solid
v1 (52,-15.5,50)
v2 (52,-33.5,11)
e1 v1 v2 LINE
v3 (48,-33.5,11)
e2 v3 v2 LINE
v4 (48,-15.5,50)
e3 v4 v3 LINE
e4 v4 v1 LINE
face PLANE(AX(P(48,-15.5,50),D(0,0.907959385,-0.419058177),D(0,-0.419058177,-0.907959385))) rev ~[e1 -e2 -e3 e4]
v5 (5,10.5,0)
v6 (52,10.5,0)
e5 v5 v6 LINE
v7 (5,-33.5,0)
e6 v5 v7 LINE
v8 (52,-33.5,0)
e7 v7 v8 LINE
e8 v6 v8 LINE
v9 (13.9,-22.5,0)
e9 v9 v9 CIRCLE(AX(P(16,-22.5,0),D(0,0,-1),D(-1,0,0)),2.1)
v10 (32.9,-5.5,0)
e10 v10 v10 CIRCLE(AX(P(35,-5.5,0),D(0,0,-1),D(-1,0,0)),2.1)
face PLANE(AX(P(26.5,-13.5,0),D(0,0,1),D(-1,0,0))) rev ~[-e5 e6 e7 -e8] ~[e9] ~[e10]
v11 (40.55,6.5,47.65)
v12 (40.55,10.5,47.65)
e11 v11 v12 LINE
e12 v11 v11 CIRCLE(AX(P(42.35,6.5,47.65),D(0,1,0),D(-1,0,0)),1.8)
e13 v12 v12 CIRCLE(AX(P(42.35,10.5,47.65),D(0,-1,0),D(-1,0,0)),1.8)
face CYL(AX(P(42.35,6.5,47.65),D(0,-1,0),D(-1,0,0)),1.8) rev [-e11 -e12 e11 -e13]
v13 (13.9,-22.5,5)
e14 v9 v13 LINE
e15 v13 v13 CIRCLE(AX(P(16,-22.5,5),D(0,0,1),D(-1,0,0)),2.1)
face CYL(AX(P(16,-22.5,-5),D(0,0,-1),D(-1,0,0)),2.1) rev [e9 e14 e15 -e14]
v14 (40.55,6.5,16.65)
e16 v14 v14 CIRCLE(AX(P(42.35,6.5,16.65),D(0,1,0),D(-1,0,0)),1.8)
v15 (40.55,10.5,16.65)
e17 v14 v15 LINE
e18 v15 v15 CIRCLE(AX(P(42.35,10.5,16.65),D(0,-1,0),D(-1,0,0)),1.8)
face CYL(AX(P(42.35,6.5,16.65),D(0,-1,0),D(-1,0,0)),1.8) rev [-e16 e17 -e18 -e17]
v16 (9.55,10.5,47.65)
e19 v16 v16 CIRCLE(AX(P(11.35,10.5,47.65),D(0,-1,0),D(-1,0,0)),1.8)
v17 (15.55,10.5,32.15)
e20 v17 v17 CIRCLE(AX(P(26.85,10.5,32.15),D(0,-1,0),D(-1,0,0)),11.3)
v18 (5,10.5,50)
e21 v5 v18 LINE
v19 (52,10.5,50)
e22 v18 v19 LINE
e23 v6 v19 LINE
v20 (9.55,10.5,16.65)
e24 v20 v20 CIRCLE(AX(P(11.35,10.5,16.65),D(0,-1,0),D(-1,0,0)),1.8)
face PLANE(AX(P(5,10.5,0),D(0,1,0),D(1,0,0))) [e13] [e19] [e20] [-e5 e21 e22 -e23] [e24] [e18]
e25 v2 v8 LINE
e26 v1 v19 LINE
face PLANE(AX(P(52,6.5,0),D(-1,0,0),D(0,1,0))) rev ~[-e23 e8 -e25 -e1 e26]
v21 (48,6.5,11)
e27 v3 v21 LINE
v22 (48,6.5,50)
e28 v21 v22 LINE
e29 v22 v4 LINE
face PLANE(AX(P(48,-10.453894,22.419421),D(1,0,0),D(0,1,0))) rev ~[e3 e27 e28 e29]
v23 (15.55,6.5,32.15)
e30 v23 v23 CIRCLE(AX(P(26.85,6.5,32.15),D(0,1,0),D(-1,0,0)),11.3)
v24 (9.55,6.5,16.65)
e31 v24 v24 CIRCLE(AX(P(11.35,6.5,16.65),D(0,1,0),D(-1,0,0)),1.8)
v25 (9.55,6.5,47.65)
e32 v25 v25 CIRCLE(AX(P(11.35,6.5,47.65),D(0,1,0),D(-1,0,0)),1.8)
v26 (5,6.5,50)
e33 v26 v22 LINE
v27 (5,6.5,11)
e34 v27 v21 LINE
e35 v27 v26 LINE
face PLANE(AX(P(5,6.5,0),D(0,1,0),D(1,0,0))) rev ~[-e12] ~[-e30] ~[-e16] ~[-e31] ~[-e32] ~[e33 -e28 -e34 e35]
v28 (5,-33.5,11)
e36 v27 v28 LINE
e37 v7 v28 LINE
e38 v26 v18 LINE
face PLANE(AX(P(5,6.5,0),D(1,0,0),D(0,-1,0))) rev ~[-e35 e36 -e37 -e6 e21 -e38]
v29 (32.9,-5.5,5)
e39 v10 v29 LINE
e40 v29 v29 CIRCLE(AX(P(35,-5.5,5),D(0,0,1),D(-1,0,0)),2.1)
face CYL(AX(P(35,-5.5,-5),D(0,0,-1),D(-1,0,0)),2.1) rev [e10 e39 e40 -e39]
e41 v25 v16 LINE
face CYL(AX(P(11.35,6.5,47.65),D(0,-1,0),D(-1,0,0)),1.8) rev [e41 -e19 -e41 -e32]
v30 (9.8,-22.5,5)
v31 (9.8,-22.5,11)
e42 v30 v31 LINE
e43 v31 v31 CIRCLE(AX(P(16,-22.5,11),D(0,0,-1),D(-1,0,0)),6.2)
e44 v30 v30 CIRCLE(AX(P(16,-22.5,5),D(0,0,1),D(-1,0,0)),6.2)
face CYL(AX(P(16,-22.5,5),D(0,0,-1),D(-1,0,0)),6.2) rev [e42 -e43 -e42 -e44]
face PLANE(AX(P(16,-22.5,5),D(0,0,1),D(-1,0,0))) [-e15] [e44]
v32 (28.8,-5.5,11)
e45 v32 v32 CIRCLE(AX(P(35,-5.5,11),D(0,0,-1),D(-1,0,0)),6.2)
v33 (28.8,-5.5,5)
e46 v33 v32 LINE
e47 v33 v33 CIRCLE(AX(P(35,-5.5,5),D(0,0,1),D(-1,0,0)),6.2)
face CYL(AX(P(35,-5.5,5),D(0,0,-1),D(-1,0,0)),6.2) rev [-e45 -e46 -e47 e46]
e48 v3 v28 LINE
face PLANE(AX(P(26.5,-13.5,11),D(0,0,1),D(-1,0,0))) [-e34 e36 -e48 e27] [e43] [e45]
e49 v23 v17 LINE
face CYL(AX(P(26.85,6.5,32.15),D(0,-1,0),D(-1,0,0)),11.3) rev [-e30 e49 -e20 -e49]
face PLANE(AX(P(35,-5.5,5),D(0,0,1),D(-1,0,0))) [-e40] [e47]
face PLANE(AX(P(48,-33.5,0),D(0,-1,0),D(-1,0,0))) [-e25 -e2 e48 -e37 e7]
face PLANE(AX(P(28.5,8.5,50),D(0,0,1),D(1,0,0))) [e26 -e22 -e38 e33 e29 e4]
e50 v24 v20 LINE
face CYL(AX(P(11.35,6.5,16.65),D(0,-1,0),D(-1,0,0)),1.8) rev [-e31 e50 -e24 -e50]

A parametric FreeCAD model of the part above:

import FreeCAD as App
import Part
import Sketcher

V = App.Vector
Q = App.Units.Quantity

doc = App.newDocument("Part")
body = doc.addObject("PartDesign::Body", "Body")

# Sketch on XZ plane
sketch1 = body.newObject("Sketcher::SketchObject", "Sketch")
sketch1.AttachmentSupport = (doc.getObject("XZ_Plane"), [""])
sketch1.MapMode = "FlatFace"
sketch1.addGeometry(Part.Circle(V(5.65, 36.65, 0), V(0, 0, 1), 1.8), False)
sketch1.addConstraint(Sketcher.Constraint("Diameter", 0, Q("3.6 mm")))
sketch1.addConstraint(Sketcher.Constraint("DistanceX", -1, 1, 0, 3, Q("5.65 mm")))
sketch1.addConstraint(Sketcher.Constraint("DistanceY", -1, 1, 0, 3, Q("36.65 mm")))
pad1 = body.newObject("PartDesign::Pad", "Pad")
pad1.Profile = sketch1
pad1.Length = 10
body2 = doc.addObject("PartDesign::Body", "Body001")

# Sketch on XZ plane
sketch2 = body2.newObject("Sketcher::SketchObject", "Sketch001")
sketch2.AttachmentSupport = (doc.getObject("XZ_Plane001"), [""])
sketch2.MapMode = "FlatFace"
sketch2.addGeometry(Part.Circle(V(36.65, 36.65, 0), V(0, 0, 1), 1.8), False)
sketch2.addConstraint(Sketcher.Constraint("Diameter", 0, Q("3.6 mm")))
sketch2.addConstraint(Sketcher.Constraint("DistanceX", -1, 1, 0, 3, Q("36.65 mm")))
sketch2.addConstraint(Sketcher.Constraint("DistanceY", -1, 1, 0, 3, Q("36.65 mm")))
pad2 = body2.newObject("PartDesign::Pad", "Pad001")
pad2.Profile = sketch2
pad2.Length = 10
body3 = doc.addObject("PartDesign::Body", "Body002")

# Sketch on XZ plane
sketch3 = body3.newObject("Sketcher::SketchObject", "Sketch002")
sketch3.AttachmentSupport = (doc.getObject("XZ_Plane002"), [""])
sketch3.MapMode = "FlatFace"
sketch3.addGeometry(Part.Circle(V(5.65, 5.65, 0), V(0, 0, 1), 1.8), False)
sketch3.addConstraint(Sketcher.Constraint("Diameter", 0, Q("3.6 mm")))
sketch3.addConstraint(Sketcher.Constraint("DistanceX", -1, 1, 0, 3, Q("5.65 mm")))
sketch3.addConstraint(Sketcher.Constraint("DistanceY", -1, 1, 0, 3, Q("5.65 mm")))
pad3 = body3.newObject("PartDesign::Pad", "Pad002")
pad3.Profile = sketch3
pad3.Length = 10
body4 = doc.addObject("PartDesign::Body", "Body003")

# Sketch on XZ plane
sketch4 = body4.newObject("Sketcher::SketchObject", "Sketch003")
sketch4.AttachmentSupport = (doc.getObject("XZ_Plane003"), [""])
sketch4.MapMode = "FlatFace"
sketch4.addGeometry(Part.Circle(V(36.65, 5.65, 0), V(0, 0, 1), 1.8), False)
sketch4.addConstraint(Sketcher.Constraint("Diameter", 0, Q("3.6 mm")))
sketch4.addConstraint(Sketcher.Constraint("DistanceX", -1, 1, 0, 3, Q("36.65 mm")))
sketch4.addConstraint(Sketcher.Constraint("DistanceY", -1, 1, 0, 3, Q("5.65 mm")))
pad4 = body4.newObject("PartDesign::Pad", "Pad003")
pad4.Profile = sketch4
pad4.Length = 10
body5 = doc.addObject("PartDesign::Body", "Body004")

# Sketch on XZ plane
sketch5 = body5.newObject("Sketcher::SketchObject", "Sketch004")
sketch5.AttachmentSupport = (doc.getObject("XZ_Plane004"), [""])
sketch5.MapMode = "FlatFace"
sketch5.AttachmentOffset = App.Placement(V(0, 0, 2), App.Rotation())
sketch5.addGeometry(Part.Circle(V(21.15, 21.15, 0), V(0, 0, 1), 2.5), False)
sketch5.addConstraint(Sketcher.Constraint("Diameter", 0, Q("5 mm")))
sketch5.addConstraint(Sketcher.Constraint("DistanceX", -1, 1, 0, 3, Q("21.15 mm")))
sketch5.addConstraint(Sketcher.Constraint("DistanceY", -1, 1, 0, 3, Q("21.15 mm")))
pad5 = body5.newObject("PartDesign::Pad", "Pad004")
pad5.Profile = sketch5
pad5.Length = 24
body6 = doc.addObject("PartDesign::Body", "Body005")

# Sketch on XZ plane
sketch6 = body6.newObject("Sketcher::SketchObject", "Sketch005")
sketch6.AttachmentSupport = (doc.getObject("XZ_Plane005"), [""])
sketch6.MapMode = "FlatFace"
sketch6.addGeometry(Part.Circle(V(21.15, 21.15, 0), V(0, 0, 1), 11.3), False)
sketch6.addConstraint(Sketcher.Constraint("Diameter", 0, Q("22.6 mm")))
sketch6.addConstraint(Sketcher.Constraint("DistanceX", -1, 1, 0, 3, Q("21.15 mm")))
sketch6.addConstraint(Sketcher.Constraint("DistanceY", -1, 1, 0, 3, Q("21.15 mm")))
pad6 = body6.newObject("PartDesign::Pad", "Pad005")
pad6.Profile = sketch6
pad6.Length = 6
body7 = doc.addObject("PartDesign::Body", "Body006")

# Sketch on XY plane
sketch7 = body7.newObject("Sketcher::SketchObject", "Sketch006")
sketch7.AttachmentSupport = (doc.getObject("XY_Plane006"), [""])
sketch7.MapMode = "FlatFace"
sketch7.addGeometry(Part.LineSegment(V(0, 39.8, 0), V(0, 0, 0)), False)
sketch7.addGeometry(Part.LineSegment(V(0, 0, 0), V(42.3, 0, 0)), False)
sketch7.addGeometry(Part.LineSegment(V(42.3, 0, 0), V(42.3, 39.8, 0)), False)
sketch7.addGeometry(Part.LineSegment(V(42.3, 39.8, 0), V(0, 39.8, 0)), False)
sketch7.addConstraint(Sketcher.Constraint("Coincident", 0, 2, 1, 1))
sketch7.addConstraint(Sketcher.Constraint("Coincident", 1, 2, 2, 1))
sketch7.addConstraint(Sketcher.Constraint("Coincident", 2, 2, 3, 1))
sketch7.addConstraint(Sketcher.Constraint("Coincident", 3, 2, 0, 1))
sketch7.addConstraint(Sketcher.Constraint("Vertical", 0))
sketch7.addConstraint(Sketcher.Constraint("Horizontal", 1))
sketch7.addConstraint(Sketcher.Constraint("Vertical", 2))
sketch7.addConstraint(Sketcher.Constraint("Horizontal", 3))
sketch7.addConstraint(Sketcher.Constraint("Coincident", 0, 2, -1, 1))
sketch7.addConstraint(Sketcher.Constraint("DistanceX", 1, 1, 1, 2, Q("42.3 mm")))
sketch7.addConstraint(Sketcher.Constraint("DistanceY", 0, 2, 0, 1, Q("39.8 mm")))
pad7 = body7.newObject("PartDesign::Pad", "Pad006")
pad7.Profile = sketch7
pad7.Length = 42.3
doc.recompute()

boolean = body7.newObject("PartDesign::Boolean", "Boolean")
boolean.Type = "Fuse"
boolean.addObjects([body6])
doc.recompute()

boolean2 = body7.newObject("PartDesign::Boolean", "Boolean001")
boolean2.Type = "Fuse"
boolean2.addObjects([body5])
doc.recompute()

boolean3 = body7.newObject("PartDesign::Boolean", "Boolean002")
boolean3.Type = "Fuse"
boolean3.addObjects([body])
doc.recompute()

boolean4 = body7.newObject("PartDesign::Boolean", "Boolean003")
boolean4.Type = "Fuse"
boolean4.addObjects([body2])
doc.recompute()

boolean5 = body7.newObject("PartDesign::Boolean", "Boolean004")
boolean5.Type = "Fuse"
boolean5.addObjects([body3])
doc.recompute()

boolean6 = body7.newObject("PartDesign::Boolean", "Boolean005")
boolean6.Type = "Fuse"
boolean6.addObjects([body4])
body8 = doc.addObject("PartDesign::Body", "Body007")
doc.recompute()

body7.Placement = App.Placement(V(9, 0, 11), App.Rotation(V(0, 0, 1), 0))
boolean7 = body8.newObject("PartDesign::Boolean", "Boolean006")
boolean7.Type = "Fuse"
boolean7.addObjects([body7])
body9 = doc.addObject("PartDesign::Body", "Body008")

# Sketch on XY plane
sketch8 = body9.newObject("Sketcher::SketchObject", "Sketch007")
sketch8.AttachmentSupport = (doc.getObject("XY_Plane008"), [""])
sketch8.MapMode = "FlatFace"
sketch8.AttachmentOffset = App.Placement(V(0, 0, 10), App.Rotation())
sketch8.addGeometry(Part.Circle(V(0, 0, 0), V(0, 0, 1), 6.2), False)
sketch8.addConstraint(Sketcher.Constraint("Coincident", 0, 3, -1, 1))
sketch8.addConstraint(Sketcher.Constraint("Diameter", 0, Q("12.4 mm")))
pad8 = body9.newObject("PartDesign::Pad", "Pad007")
pad8.Profile = sketch8
pad8.Length = 30
body10 = doc.addObject("PartDesign::Body", "Body009")

# Sketch on XY plane
sketch9 = body10.newObject("Sketcher::SketchObject", "Sketch008")
sketch9.AttachmentSupport = (doc.getObject("XY_Plane009"), [""])
sketch9.MapMode = "FlatFace"
sketch9.addGeometry(Part.Circle(V(0, 0, 0), V(0, 0, 1), 2.1), False)
sketch9.addConstraint(Sketcher.Constraint("Coincident", 0, 3, -1, 1))
sketch9.addConstraint(Sketcher.Constraint("Diameter", 0, Q("4.2 mm")))
pad9 = body10.newObject("PartDesign::Pad", "Pad008")
pad9.Profile = sketch9
pad9.Length = 10
doc.recompute()

boolean8 = body10.newObject("PartDesign::Boolean", "Boolean007")
boolean8.Type = "Fuse"
boolean8.addObjects([body9])
body11 = doc.addObject("PartDesign::Body", "Body010")
doc.recompute()

body10.Placement = App.Placement(V(22, 12, -5), App.Rotation(V(0, 0, 1), 0))
boolean9 = body11.newObject("PartDesign::Boolean", "Boolean008")
boolean9.Type = "Fuse"
boolean9.addObjects([body10])
body12 = doc.addObject("PartDesign::Body", "Body011")

# Sketch on XY plane
sketch10 = body12.newObject("Sketcher::SketchObject", "Sketch009")
sketch10.AttachmentSupport = (doc.getObject("XY_Plane011"), [""])
sketch10.MapMode = "FlatFace"
sketch10.AttachmentOffset = App.Placement(V(0, 0, 10), App.Rotation())
sketch10.addGeometry(Part.Circle(V(0, 0, 0), V(0, 0, 1), 6.2), False)
sketch10.addConstraint(Sketcher.Constraint("Coincident", 0, 3, -1, 1))
sketch10.addConstraint(Sketcher.Constraint("Diameter", 0, Q("12.4 mm")))
pad10 = body12.newObject("PartDesign::Pad", "Pad009")
pad10.Profile = sketch10
pad10.Length = 30
body13 = doc.addObject("PartDesign::Body", "Body012")

# Sketch on XY plane
sketch11 = body13.newObject("Sketcher::SketchObject", "Sketch010")
sketch11.AttachmentSupport = (doc.getObject("XY_Plane012"), [""])
sketch11.MapMode = "FlatFace"
sketch11.addGeometry(Part.Circle(V(0, 0, 0), V(0, 0, 1), 2.1), False)
sketch11.addConstraint(Sketcher.Constraint("Coincident", 0, 3, -1, 1))
sketch11.addConstraint(Sketcher.Constraint("Diameter", 0, Q("4.2 mm")))
pad11 = body13.newObject("PartDesign::Pad", "Pad010")
pad11.Profile = sketch11
pad11.Length = 10
doc.recompute()

boolean10 = body13.newObject("PartDesign::Boolean", "Boolean009")
boolean10.Type = "Fuse"
boolean10.addObjects([body12])
body14 = doc.addObject("PartDesign::Body", "Body013")
doc.recompute()

body13.Placement = App.Placement(V(41, 29, -5), App.Rotation(V(0, 0, 1), 0))
boolean11 = body14.newObject("PartDesign::Boolean", "Boolean010")
boolean11.Type = "Fuse"
boolean11.addObjects([body13])
body15 = doc.addObject("PartDesign::Body", "Body014")

# Sketch on XY plane
sketch12 = body15.newObject("Sketcher::SketchObject", "Sketch011")
sketch12.AttachmentSupport = (doc.getObject("XY_Plane014"), [""])
sketch12.MapMode = "FlatFace"
sketch12.addGeometry(Part.LineSegment(V(52, -4, 0), V(52, 0, 0)), False)
sketch12.addGeometry(Part.LineSegment(V(52, 0, 0), V(5, 0, 0)), False)
sketch12.addGeometry(Part.LineSegment(V(5, 0, 0), V(5, -4, 0)), False)
sketch12.addGeometry(Part.LineSegment(V(5, -4, 0), V(52, -4, 0)), False)
sketch12.addConstraint(Sketcher.Constraint("Coincident", 0, 2, 1, 1))
sketch12.addConstraint(Sketcher.Constraint("Coincident", 1, 2, 2, 1))
sketch12.addConstraint(Sketcher.Constraint("Coincident", 2, 2, 3, 1))
sketch12.addConstraint(Sketcher.Constraint("Coincident", 3, 2, 0, 1))
sketch12.addConstraint(Sketcher.Constraint("Vertical", 0))
sketch12.addConstraint(Sketcher.Constraint("Horizontal", 1))
sketch12.addConstraint(Sketcher.Constraint("Vertical", 2))
sketch12.addConstraint(Sketcher.Constraint("Horizontal", 3))
sketch12.addConstraint(Sketcher.Constraint("PointOnObject", 0, 2, -1))
sketch12.addConstraint(Sketcher.Constraint("DistanceX", 1, 2, 1, 1, Q("47 mm")))
sketch12.addConstraint(Sketcher.Constraint("DistanceY", 0, 1, 0, 2, Q("4 mm")))
sketch12.addConstraint(Sketcher.Constraint("DistanceX", -1, 1, 0, 2, Q("52 mm")))
pad12 = body15.newObject("PartDesign::Pad", "Pad011")
pad12.Profile = sketch12
pad12.Length = 50
body16 = doc.addObject("PartDesign::Body", "Body015")

# Sketch on XY plane
sketch13 = body16.newObject("Sketcher::SketchObject", "Sketch012")
sketch13.AttachmentSupport = (doc.getObject("XY_Plane015"), [""])
sketch13.MapMode = "FlatFace"
sketch13.addGeometry(Part.LineSegment(V(9, 40, 0), V(9, 0, 0)), False)
sketch13.addGeometry(Part.LineSegment(V(9, 0, 0), V(52, 0, 0)), False)
sketch13.addGeometry(Part.LineSegment(V(52, 0, 0), V(52, 40, 0)), False)
sketch13.addGeometry(Part.LineSegment(V(52, 40, 0), V(9, 40, 0)), False)
sketch13.addConstraint(Sketcher.Constraint("Coincident", 0, 2, 1, 1))
sketch13.addConstraint(Sketcher.Constraint("Coincident", 1, 2, 2, 1))
sketch13.addConstraint(Sketcher.Constraint("Coincident", 2, 2, 3, 1))
sketch13.addConstraint(Sketcher.Constraint("Coincident", 3, 2, 0, 1))
sketch13.addConstraint(Sketcher.Constraint("Vertical", 0))
sketch13.addConstraint(Sketcher.Constraint("Horizontal", 1))
sketch13.addConstraint(Sketcher.Constraint("Vertical", 2))
sketch13.addConstraint(Sketcher.Constraint("Horizontal", 3))
sketch13.addConstraint(Sketcher.Constraint("PointOnObject", 0, 2, -1))
sketch13.addConstraint(Sketcher.Constraint("DistanceX", 1, 1, 1, 2, Q("43 mm")))
sketch13.addConstraint(Sketcher.Constraint("DistanceY", 0, 2, 0, 1, Q("40 mm")))
sketch13.addConstraint(Sketcher.Constraint("DistanceX", -1, 1, 0, 2, Q("9 mm")))
pad13 = body16.newObject("PartDesign::Pad", "Pad012")
pad13.Profile = sketch13
pad13.Length = 11
body17 = doc.addObject("PartDesign::Body", "Body016")

# Sketch on YZ plane
sketch14 = body17.newObject("Sketcher::SketchObject", "Sketch013")
sketch14.AttachmentSupport = (doc.getObject("YZ_Plane016"), [""])
sketch14.MapMode = "FlatFace"
sketch14.addGeometry(Part.LineSegment(V(0, 50, 0), V(0, 0, 0)), False)
sketch14.addGeometry(Part.LineSegment(V(0, 0, 0), V(40, 0, 0)), False)
sketch14.addGeometry(Part.LineSegment(V(40, 0, 0), V(40, 11, 0)), False)
sketch14.addGeometry(Part.LineSegment(V(40, 11, 0), V(22, 50, 0)), False)
sketch14.addGeometry(Part.LineSegment(V(22, 50, 0), V(0, 50, 0)), False)
sketch14.addConstraint(Sketcher.Constraint("Coincident", 0, 2, 1, 1))
sketch14.addConstraint(Sketcher.Constraint("Coincident", 1, 2, 2, 1))
sketch14.addConstraint(Sketcher.Constraint("Coincident", 2, 2, 3, 1))
sketch14.addConstraint(Sketcher.Constraint("Coincident", 3, 2, 4, 1))
sketch14.addConstraint(Sketcher.Constraint("Coincident", 4, 2, 0, 1))
sketch14.addConstraint(Sketcher.Constraint("Vertical", 0))
sketch14.addConstraint(Sketcher.Constraint("Horizontal", 1))
sketch14.addConstraint(Sketcher.Constraint("Vertical", 2))
sketch14.addConstraint(Sketcher.Constraint("Horizontal", 4))
sketch14.addConstraint(Sketcher.Constraint("Coincident", 0, 2, -1, 1))
sketch14.addConstraint(Sketcher.Constraint("DistanceX", 1, 1, 1, 2, Q("40 mm")))
sketch14.addConstraint(Sketcher.Constraint("DistanceX", 4, 2, 4, 1, Q("22 mm")))
sketch14.addConstraint(Sketcher.Constraint("DistanceY", 0, 2, 0, 1, Q("50 mm")))
sketch14.addConstraint(Sketcher.Constraint("DistanceY", 2, 1, 2, 2, Q("11 mm")))
pad14 = body17.newObject("PartDesign::Pad", "Pad013")
pad14.Profile = sketch14
pad14.Length = 4
pad14.Reversed = True
body18 = doc.addObject("PartDesign::Body", "Body017")
doc.recompute()

body17.Placement = App.Placement(V(9, 0, 0), App.Rotation(V(0, 0, 1), 0))
boolean12 = body18.newObject("PartDesign::Boolean", "Boolean011")
boolean12.Type = "Fuse"
boolean12.addObjects([body17])
doc.recompute()

boolean13 = body18.newObject("PartDesign::Boolean", "Boolean012")
boolean13.Type = "Fuse"
boolean13.addObjects([body15])
doc.recompute()

boolean14 = body18.newObject("PartDesign::Boolean", "Boolean013")
boolean14.Type = "Fuse"
boolean14.addObjects([body16])
doc.recompute()

boolean15 = body18.newObject("PartDesign::Boolean", "Boolean014")
boolean15.Type = "Cut"
boolean15.addObjects([body14])
doc.recompute()

boolean16 = body18.newObject("PartDesign::Boolean", "Boolean015")
boolean16.Type = "Cut"
boolean16.addObjects([body11])
doc.recompute()

boolean17 = body18.newObject("PartDesign::Boolean", "Boolean016")
boolean17.Type = "Cut"
boolean17.addObjects([body8])
body19 = doc.addObject("PartDesign::Body", "Body018")
doc.recompute()

body18.Placement = App.Placement(V(57, 6.5, 0), App.Rotation(V(0, 0, 1), 180))
boolean18 = body19.newObject("PartDesign::Boolean", "Boolean017")
boolean18.Type = "Fuse"
boolean18.addObjects([body18])

doc.recompute()
